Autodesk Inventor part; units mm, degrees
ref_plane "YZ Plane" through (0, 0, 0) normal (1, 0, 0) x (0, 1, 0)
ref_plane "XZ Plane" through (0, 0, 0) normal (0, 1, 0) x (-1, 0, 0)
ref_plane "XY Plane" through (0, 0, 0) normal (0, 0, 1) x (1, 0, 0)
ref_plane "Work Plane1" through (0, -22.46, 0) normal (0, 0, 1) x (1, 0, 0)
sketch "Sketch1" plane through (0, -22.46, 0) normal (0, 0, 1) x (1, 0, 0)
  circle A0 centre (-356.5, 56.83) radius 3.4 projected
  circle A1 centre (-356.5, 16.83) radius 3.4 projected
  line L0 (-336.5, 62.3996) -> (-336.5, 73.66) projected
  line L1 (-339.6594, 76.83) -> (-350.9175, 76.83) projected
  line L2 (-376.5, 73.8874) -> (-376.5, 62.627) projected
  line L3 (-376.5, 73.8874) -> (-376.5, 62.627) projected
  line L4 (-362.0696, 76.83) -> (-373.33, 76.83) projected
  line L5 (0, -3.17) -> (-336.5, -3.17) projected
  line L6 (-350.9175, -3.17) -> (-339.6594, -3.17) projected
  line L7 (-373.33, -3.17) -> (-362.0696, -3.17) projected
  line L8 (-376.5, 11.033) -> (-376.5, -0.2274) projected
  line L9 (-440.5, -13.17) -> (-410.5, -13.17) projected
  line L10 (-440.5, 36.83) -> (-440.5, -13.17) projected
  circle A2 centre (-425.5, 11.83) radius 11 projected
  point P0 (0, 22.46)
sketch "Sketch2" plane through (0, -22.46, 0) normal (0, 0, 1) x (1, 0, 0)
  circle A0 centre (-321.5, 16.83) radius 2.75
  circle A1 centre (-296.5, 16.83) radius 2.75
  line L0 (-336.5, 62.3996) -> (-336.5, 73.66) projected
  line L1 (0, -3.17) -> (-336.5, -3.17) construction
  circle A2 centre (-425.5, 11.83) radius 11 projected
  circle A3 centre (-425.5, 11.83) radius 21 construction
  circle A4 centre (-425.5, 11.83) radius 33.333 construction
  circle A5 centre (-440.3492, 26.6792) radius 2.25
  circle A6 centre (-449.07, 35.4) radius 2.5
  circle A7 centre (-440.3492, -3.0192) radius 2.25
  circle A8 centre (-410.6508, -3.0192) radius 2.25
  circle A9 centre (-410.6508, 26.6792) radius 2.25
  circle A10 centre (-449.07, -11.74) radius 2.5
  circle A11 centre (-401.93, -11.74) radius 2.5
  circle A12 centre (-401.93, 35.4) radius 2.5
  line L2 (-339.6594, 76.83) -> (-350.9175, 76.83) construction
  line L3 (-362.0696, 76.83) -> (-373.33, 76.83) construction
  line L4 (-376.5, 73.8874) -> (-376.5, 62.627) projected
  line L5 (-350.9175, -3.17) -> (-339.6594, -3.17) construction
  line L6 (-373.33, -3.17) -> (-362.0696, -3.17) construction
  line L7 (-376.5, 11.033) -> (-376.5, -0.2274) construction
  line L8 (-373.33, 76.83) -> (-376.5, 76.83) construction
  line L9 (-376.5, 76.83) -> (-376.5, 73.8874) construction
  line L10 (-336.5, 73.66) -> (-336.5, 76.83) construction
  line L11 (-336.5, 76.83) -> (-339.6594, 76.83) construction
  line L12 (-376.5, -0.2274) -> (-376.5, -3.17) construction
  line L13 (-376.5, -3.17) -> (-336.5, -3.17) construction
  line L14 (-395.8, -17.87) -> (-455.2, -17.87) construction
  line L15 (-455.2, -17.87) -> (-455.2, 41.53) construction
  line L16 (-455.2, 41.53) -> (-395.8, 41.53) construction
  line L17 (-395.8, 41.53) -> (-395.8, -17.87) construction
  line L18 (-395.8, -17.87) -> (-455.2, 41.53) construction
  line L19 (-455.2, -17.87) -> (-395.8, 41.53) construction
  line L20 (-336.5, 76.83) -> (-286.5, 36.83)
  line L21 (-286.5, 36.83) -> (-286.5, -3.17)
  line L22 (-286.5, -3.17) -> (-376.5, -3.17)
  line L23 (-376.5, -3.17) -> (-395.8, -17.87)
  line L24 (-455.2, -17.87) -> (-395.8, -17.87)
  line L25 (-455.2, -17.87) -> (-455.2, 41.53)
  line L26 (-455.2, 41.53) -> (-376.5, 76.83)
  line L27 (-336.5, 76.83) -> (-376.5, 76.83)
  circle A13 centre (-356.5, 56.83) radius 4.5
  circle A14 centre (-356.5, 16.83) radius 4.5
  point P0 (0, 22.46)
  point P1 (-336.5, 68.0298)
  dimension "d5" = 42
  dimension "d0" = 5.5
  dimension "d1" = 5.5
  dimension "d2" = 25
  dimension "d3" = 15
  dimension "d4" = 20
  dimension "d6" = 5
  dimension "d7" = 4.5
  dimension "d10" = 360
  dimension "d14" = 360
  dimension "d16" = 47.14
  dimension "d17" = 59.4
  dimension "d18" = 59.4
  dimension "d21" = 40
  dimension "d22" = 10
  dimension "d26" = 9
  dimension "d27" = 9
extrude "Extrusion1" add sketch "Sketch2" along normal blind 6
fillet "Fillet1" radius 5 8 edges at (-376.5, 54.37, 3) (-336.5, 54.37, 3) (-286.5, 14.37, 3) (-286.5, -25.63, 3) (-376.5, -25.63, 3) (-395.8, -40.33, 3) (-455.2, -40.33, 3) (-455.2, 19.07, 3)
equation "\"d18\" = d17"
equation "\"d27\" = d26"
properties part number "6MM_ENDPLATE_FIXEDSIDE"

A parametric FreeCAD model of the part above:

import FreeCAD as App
import Part
import Sketcher
Q = App.Units.Quantity


def edges_at(feature, points):
    """Names of the edges that pass closest to the given points."""
    edges = feature.Shape.Edges
    near = lambda p: min(range(len(edges)), key=lambda i: edges[i].distToShape(Part.Vertex(*p))[0])
    return sorted({f"Edge{near(p) + 1}" for p in points})


def add_polygon(sketch, points):
    """Adds a closed chain of lines whose ends are joined by coincident constraints."""
    first, n = sketch.GeometryCount, len(points)
    for a, b in zip(points, points[1:] + points[:1]):
        sketch.addGeometry(Part.LineSegment(App.Vector(*a, 0), App.Vector(*b, 0)), False)
    for i in range(n):
        sketch.addConstraint(Sketcher.Constraint("Coincident", first + i, 2, first + (i + 1) % n, 1))

doc = App.newDocument("Part")
body = doc.addObject("PartDesign::Body", "Body")

sketch1 = body.newObject("Sketcher::SketchObject", "Sketch")
sketch1.AttachmentSupport = (doc.getObject("XY_Plane"), [""])
sketch1.MapMode = "FlatFace"
add_polygon(sketch1, [(-286.5, 14.4), (-336.5, 54.4), (-376.5, 54.4), (-455.2, 19.1), (-455.2, -40.3), (-395.8, -40.3), (-376.5, -25.6), (-286.5, -25.6)])
sketch1.addGeometry(Part.Circle(App.Vector(-449.1, -34.2, 0), App.Vector(0, 0, 1), 2.5), False)
sketch1.addGeometry(Part.Circle(App.Vector(-440.3, -25.5, 0), App.Vector(0, 0, 1), 2.2), False)
sketch1.addGeometry(Part.Circle(App.Vector(-401.9, -34.2, 0), App.Vector(0, 0, 1), 2.5), False)
sketch1.addGeometry(Part.Circle(App.Vector(-410.7, -25.5, 0), App.Vector(0, 0, 1), 2.2), False)
sketch1.addGeometry(Part.Circle(App.Vector(-425.5, -10.6, 0), App.Vector(0, 0, 1), 11), False)
sketch1.addGeometry(Part.Circle(App.Vector(-440.3, 4.2, 0), App.Vector(0, 0, 1), 2.2), False)
sketch1.addGeometry(Part.Circle(App.Vector(-410.7, 4.2, 0), App.Vector(0, 0, 1), 2.2), False)
sketch1.addGeometry(Part.Circle(App.Vector(-356.5, -5.6, 0), App.Vector(0, 0, 1), 4.5), False)
sketch1.addGeometry(Part.Circle(App.Vector(-321.5, -5.6, 0), App.Vector(0, 0, 1), 2.8), False)
sketch1.addGeometry(Part.Circle(App.Vector(-296.5, -5.6, 0), App.Vector(0, 0, 1), 2.8), False)
sketch1.addGeometry(Part.Circle(App.Vector(-449.1, 12.9, 0), App.Vector(0, 0, 1), 2.5), False)
sketch1.addGeometry(Part.Circle(App.Vector(-401.9, 12.9, 0), App.Vector(0, 0, 1), 2.5), False)
sketch1.addGeometry(Part.Circle(App.Vector(-356.5, 34.4, 0), App.Vector(0, 0, 1), 4.5), False)
sketch1.addConstraint(Sketcher.Constraint("Horizontal", 1))
sketch1.addConstraint(Sketcher.Constraint("Vertical", 3))
sketch1.addConstraint(Sketcher.Constraint("Horizontal", 4))
sketch1.addConstraint(Sketcher.Constraint("Horizontal", 6))
sketch1.addConstraint(Sketcher.Constraint("Vertical", 7))
sketch1.addConstraint(Sketcher.Constraint("Equal", 8, 10))
sketch1.addConstraint(Sketcher.Constraint("Equal", 9, 11))
sketch1.addConstraint(Sketcher.Constraint("Equal", 11, 13))
sketch1.addConstraint(Sketcher.Constraint("Equal", 13, 14))
sketch1.addConstraint(Sketcher.Constraint("Equal", 16, 17))
sketch1.addConstraint(Sketcher.Constraint("Equal", 10, 18))
sketch1.addConstraint(Sketcher.Constraint("Equal", 18, 19))
sketch1.addConstraint(Sketcher.Constraint("Equal", 15, 20))
sketch1.addConstraint(Sketcher.Constraint("Horizontal", 8, 3, 10, 3))
sketch1.addConstraint(Sketcher.Constraint("Horizontal", 9, 3, 11, 3))
sketch1.addConstraint(Sketcher.Constraint("Horizontal", 13, 3, 14, 3))
sketch1.addConstraint(Sketcher.Constraint("Horizontal", 15, 3, 16, 3))
sketch1.addConstraint(Sketcher.Constraint("Horizontal", 16, 3, 17, 3))
sketch1.addConstraint(Sketcher.Constraint("Horizontal", 18, 3, 19, 3))
sketch1.addConstraint(Sketcher.Constraint("Vertical", 9, 3, 13, 3))
sketch1.addConstraint(Sketcher.Constraint("Vertical", 11, 3, 14, 3))
sketch1.addConstraint(Sketcher.Constraint("Vertical", 8, 3, 18, 3))
sketch1.addConstraint(Sketcher.Constraint("Vertical", 10, 3, 19, 3))
sketch1.addConstraint(Sketcher.Constraint("Vertical", 15, 3, 20, 3))
sketch1.addConstraint(Sketcher.Constraint("Vertical", 1, 2, 5, 2))
sketch1.addConstraint(Sketcher.Constraint("Equal", 4, 3))
sketch1.addConstraint(Sketcher.Constraint("Equal", 1, 7))
sketch1.addConstraint(Sketcher.Constraint("Diameter", 8, Q("5 mm")))
sketch1.addConstraint(Sketcher.Constraint("Diameter", 15, Q("9 mm")))
sketch1.addConstraint(Sketcher.Constraint("Diameter", 9, Q("4.5 mm")))
sketch1.addConstraint(Sketcher.Constraint("Diameter", 16, Q("5.5 mm")))
sketch1.addConstraint(Sketcher.Constraint("DistanceX", 1, 2, 1, 1, Q("40 mm")))
sketch1.addConstraint(Sketcher.Constraint("Diameter", 12, Q("22 mm")))
sketch1.addConstraint(Sketcher.Constraint("DistanceX", 4, 1, 4, 2, Q("59.4 mm")))
sketch1.addConstraint(Sketcher.Constraint("DistanceY", 12, 3, 15, 3, Q("5 mm")))
sketch1.addConstraint(Sketcher.Constraint("DistanceX", 16, 3, 17, 3, Q("25 mm")))
sketch1.addConstraint(Sketcher.Constraint("DistanceY", 15, 3, 20, 3, Q("40 mm")))
sketch1.addConstraint(Sketcher.Constraint("DistanceX", 20, 3, 0, 2, Q("20 mm")))
sketch1.addConstraint(Sketcher.Constraint("DistanceY", 20, 3, 0, 2, Q("20 mm")))
sketch1.addConstraint(Sketcher.Constraint("DistanceX", 0, 2, 16, 3, Q("15 mm")))
sketch1.addConstraint(Sketcher.Constraint("DistanceY", 5, 2, 15, 3, Q("20 mm")))
sketch1.addConstraint(Sketcher.Constraint("DistanceX", 17, 3, 6, 2, Q("10 mm")))
sketch1.addConstraint(Sketcher.Constraint("DistanceX", 8, 3, 10, 3, Q("47.14 mm")))
sketch1.addConstraint(Sketcher.Constraint("DistanceY", 8, 3, 18, 3, Q("47.14 mm")))
sketch1.addConstraint(Sketcher.Constraint("DistanceX", 12, 3, 15, 3, Q("69 mm")))
sketch1.addConstraint(Sketcher.Constraint("DistanceY", 8, 3, -1, 1, Q("34.2 mm")))
sketch1.addConstraint(Sketcher.Constraint("DistanceX", 12, 3, -1, 1, Q("425.5 mm")))
sketch1.addConstraint(Sketcher.Constraint("DistanceX", 2, 2, -1, 1, Q("455.2 mm")))
sketch1.addConstraint(Sketcher.Constraint("DistanceY", 12, 3, 2, 2, Q("29.7 mm")))
sketch1.addConstraint(Sketcher.Constraint("DistanceX", 8, 3, -1, 1, Q("449.07 mm")))
sketch1.addConstraint(Sketcher.Constraint("DistanceY", 12, 3, -1, 1, Q("10.63 mm")))
sketch1.addConstraint(Sketcher.Constraint("DistanceX", 9, 3, -1, 1, Q("440.3492 mm")))
sketch1.addConstraint(Sketcher.Constraint("DistanceY", 9, 3, -1, 1, Q("25.4792 mm")))
sketch1.addConstraint(Sketcher.Constraint("DistanceX", 11, 3, -1, 1, Q("410.6508 mm")))
sketch1.addConstraint(Sketcher.Constraint("DistanceY", -1, 1, 13, 3, Q("4.2192 mm")))
pad1 = body.newObject("PartDesign::Pad", "Pad")
pad1.Profile = sketch1
pad1.Length = 6
doc.recompute()

fillet = body.newObject("PartDesign::Fillet", "Fillet")
fillet.Base = (pad1, edges_at(pad1, [
    (-376.5, 54.37, 3),
    (-336.5, 54.37, 3),
    (-286.5, 14.37, 3),
    (-286.5, -25.63, 3),
    (-376.5, -25.63, 3),
    (-395.8, -40.33, 3),
    (-455.2, -40.33, 3),
    (-455.2, 19.07, 3),
]))
fillet.Radius = 5

doc.recompute()
